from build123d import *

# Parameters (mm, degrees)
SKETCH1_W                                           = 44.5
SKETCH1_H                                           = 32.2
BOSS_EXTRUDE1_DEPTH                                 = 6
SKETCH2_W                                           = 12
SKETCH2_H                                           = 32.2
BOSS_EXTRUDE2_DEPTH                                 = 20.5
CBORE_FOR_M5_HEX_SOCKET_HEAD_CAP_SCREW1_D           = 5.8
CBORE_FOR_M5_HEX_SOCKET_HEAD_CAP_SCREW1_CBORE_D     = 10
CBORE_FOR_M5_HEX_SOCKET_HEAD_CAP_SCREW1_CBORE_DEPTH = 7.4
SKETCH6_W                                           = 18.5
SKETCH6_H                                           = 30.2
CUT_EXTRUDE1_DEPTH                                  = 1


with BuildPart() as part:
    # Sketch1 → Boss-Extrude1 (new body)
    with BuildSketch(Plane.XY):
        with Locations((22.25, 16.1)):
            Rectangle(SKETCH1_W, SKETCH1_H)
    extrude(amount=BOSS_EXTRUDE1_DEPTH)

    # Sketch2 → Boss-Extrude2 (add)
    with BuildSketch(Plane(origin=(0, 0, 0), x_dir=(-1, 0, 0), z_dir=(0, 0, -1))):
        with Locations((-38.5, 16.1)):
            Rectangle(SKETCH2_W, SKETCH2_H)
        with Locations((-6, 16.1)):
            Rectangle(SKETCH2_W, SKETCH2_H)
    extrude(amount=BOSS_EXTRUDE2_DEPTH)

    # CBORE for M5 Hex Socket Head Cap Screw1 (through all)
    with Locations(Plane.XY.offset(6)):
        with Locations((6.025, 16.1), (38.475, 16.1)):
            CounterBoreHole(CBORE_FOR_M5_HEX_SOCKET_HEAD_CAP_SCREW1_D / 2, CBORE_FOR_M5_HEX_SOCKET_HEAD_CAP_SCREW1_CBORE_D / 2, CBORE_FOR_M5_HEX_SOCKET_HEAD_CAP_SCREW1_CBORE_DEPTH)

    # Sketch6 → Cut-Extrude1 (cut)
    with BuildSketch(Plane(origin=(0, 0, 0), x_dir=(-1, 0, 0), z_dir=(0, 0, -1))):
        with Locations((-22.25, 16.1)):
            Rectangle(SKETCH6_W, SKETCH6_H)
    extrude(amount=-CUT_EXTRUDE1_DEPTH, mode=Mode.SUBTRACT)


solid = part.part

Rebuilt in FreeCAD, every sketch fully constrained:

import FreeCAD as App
import Part
import Sketcher

doc = App.newDocument("Part")
params = doc.addObject("Spreadsheet::Sheet", "Params")
for row, (alias, value) in enumerate([
    ("sketch1_width", "44.5 mm"),
    ("sketch1_height", "32.2 mm"),
    ("pad1_length", "6 mm"),
    ("sketch2_width", "12 mm"),
    ("sketch2_height", "32.2 mm"),
    ("pad2_length", "20.5 mm"),
    ("sketch3_diameter", "5.8 mm"),
    ("hole_diameter", "5.8 mm"),
    ("hole_cbore_diameter", "10 mm"),
    ("hole_cbore_depth", "7.4 mm"),
    ("sketch4_width", "18.5 mm"),
    ("sketch4_height", "30.2 mm"),
    ("pocket1_length", "1 mm"),
], start=1):
    params.set(f"A{row}", alias)
    params.set(f"B{row}", "=" + value)
    params.setAlias(f"B{row}", alias)

body = doc.addObject("PartDesign::Body", "Body")

# Sketch on XY plane
sketch1 = doc.addObject("Sketcher::SketchObject", "Sketch")
body.addObject(sketch1)
sketch1.AttachmentSupport = (doc.XY_Plane, [""])
sketch1.MapMode = "FlatFace"
sketch1.addGeometry(Part.LineSegment(App.Vector(0, 32, 0), App.Vector(0, 0, 0)), False)
sketch1.addGeometry(Part.LineSegment(App.Vector(0, 0, 0), App.Vector(44, 0, 0)), False)
sketch1.addGeometry(Part.LineSegment(App.Vector(44, 0, 0), App.Vector(44, 32, 0)), False)
sketch1.addGeometry(Part.LineSegment(App.Vector(44, 32, 0), App.Vector(0, 32, 0)), False)
sketch1.addConstraint(Sketcher.Constraint("Coincident", 0, 2, 1, 1))
sketch1.addConstraint(Sketcher.Constraint("Coincident", 1, 2, 2, 1))
sketch1.addConstraint(Sketcher.Constraint("Coincident", 2, 2, 3, 1))
sketch1.addConstraint(Sketcher.Constraint("Coincident", 3, 2, 0, 1))
sketch1.addConstraint(Sketcher.Constraint("Vertical", 0))
sketch1.addConstraint(Sketcher.Constraint("Horizontal", 1))
sketch1.addConstraint(Sketcher.Constraint("Vertical", 2))
sketch1.addConstraint(Sketcher.Constraint("Horizontal", 3))
sketch1.addConstraint(Sketcher.Constraint("Coincident", 0, 2, -1, 1))
sketch1.addConstraint(Sketcher.Constraint("DistanceX", 1, 1, 1, 2, 44.5))
sketch1.addConstraint(Sketcher.Constraint("DistanceY", 0, 2, 0, 1, 32.2))
sketch1.setExpression("Constraints[9]", "Params.sketch1_width")
sketch1.setExpression("Constraints[10]", "Params.sketch1_height")
pad1 = doc.addObject("PartDesign::Pad", "Pad")
body.addObject(pad1)
pad1.Profile = sketch1
pad1.setExpression("Length", "Params.pad1_length")

# Sketch on XY plane
sketch2 = doc.addObject("Sketcher::SketchObject", "Sketch001")
body.addObject(sketch2)
sketch2.AttachmentSupport = (doc.XY_Plane, [""])
sketch2.MapMode = "FlatFace"
sketch2.addGeometry(Part.LineSegment(App.Vector(44, 32, 0), App.Vector(44, 0, 0)), False)
sketch2.addGeometry(Part.LineSegment(App.Vector(44, 0, 0), App.Vector(32, 0, 0)), False)
sketch2.addGeometry(Part.LineSegment(App.Vector(32, 0, 0), App.Vector(32, 32, 0)), False)
sketch2.addGeometry(Part.LineSegment(App.Vector(32, 32, 0), App.Vector(44, 32, 0)), False)
sketch2.addGeometry(Part.LineSegment(App.Vector(12, 32, 0), App.Vector(12, 0, 0)), False)
sketch2.addGeometry(Part.LineSegment(App.Vector(12, 0, 0), App.Vector(0, 0, 0)), False)
sketch2.addGeometry(Part.LineSegment(App.Vector(0, 0, 0), App.Vector(0, 32, 0)), False)
sketch2.addGeometry(Part.LineSegment(App.Vector(0, 32, 0), App.Vector(12, 32, 0)), False)
sketch2.addConstraint(Sketcher.Constraint("Coincident", 0, 2, 1, 1))
sketch2.addConstraint(Sketcher.Constraint("Coincident", 1, 2, 2, 1))
sketch2.addConstraint(Sketcher.Constraint("Coincident", 2, 2, 3, 1))
sketch2.addConstraint(Sketcher.Constraint("Coincident", 3, 2, 0, 1))
sketch2.addConstraint(Sketcher.Constraint("Coincident", 4, 2, 5, 1))
sketch2.addConstraint(Sketcher.Constraint("Coincident", 5, 2, 6, 1))
sketch2.addConstraint(Sketcher.Constraint("Coincident", 6, 2, 7, 1))
sketch2.addConstraint(Sketcher.Constraint("Coincident", 7, 2, 4, 1))
sketch2.addConstraint(Sketcher.Constraint("Vertical", 0))
sketch2.addConstraint(Sketcher.Constraint("Horizontal", 1))
sketch2.addConstraint(Sketcher.Constraint("Vertical", 2))
sketch2.addConstraint(Sketcher.Constraint("Horizontal", 3))
sketch2.addConstraint(Sketcher.Constraint("Vertical", 4))
sketch2.addConstraint(Sketcher.Constraint("Horizontal", 5))
sketch2.addConstraint(Sketcher.Constraint("Vertical", 6))
sketch2.addConstraint(Sketcher.Constraint("Horizontal", 7))
sketch2.addConstraint(Sketcher.Constraint("Coincident", 5, 2, -1, 1))
sketch2.addConstraint(Sketcher.Constraint("PointOnObject", 0, 2, -1))
sketch2.addConstraint(Sketcher.Constraint("Horizontal", 3, 2, 6, 2))
sketch2.addConstraint(Sketcher.Constraint("Equal", 3, 5))
sketch2.addConstraint(Sketcher.Constraint("DistanceX", 1, 2, 1, 1, 12.0))
sketch2.addConstraint(Sketcher.Constraint("DistanceY", 0, 2, 0, 1, 32.2))
sketch2.addConstraint(Sketcher.Constraint("DistanceX", -1, 1, 0, 2, 44.5))
sketch2.setExpression("Constraints[20]", "Params.sketch2_width")
sketch2.setExpression("Constraints[21]", "Params.sketch2_height")
pad2 = doc.addObject("PartDesign::Pad", "Pad001")
body.addObject(pad2)
pad2.Profile = sketch2
pad2.setExpression("Length", "Params.pad2_length")
pad2.Reversed = True

# Sketch on XY plane
sketch3 = doc.addObject("Sketcher::SketchObject", "Sketch002")
body.addObject(sketch3)
sketch3.AttachmentSupport = (doc.XY_Plane, [""])
sketch3.MapMode = "FlatFace"
sketch3.AttachmentOffset = App.Placement(App.Vector(0, 0, 6), App.Rotation())
sketch3.addGeometry(Part.Circle(App.Vector(6, 16.1, 0), App.Vector(0, 0, 1), 2.9), False)
sketch3.addGeometry(Part.Circle(App.Vector(38.5, 16.1, 0), App.Vector(0, 0, 1), 2.9), False)
sketch3.addConstraint(Sketcher.Constraint("Equal", 0, 1))
sketch3.addConstraint(Sketcher.Constraint("Horizontal", 0, 3, 1, 3))
sketch3.addConstraint(Sketcher.Constraint("Diameter", 0, 5.8))
sketch3.addConstraint(Sketcher.Constraint("DistanceY", -1, 1, 0, 3, 16.1))
sketch3.addConstraint(Sketcher.Constraint("DistanceX", 0, 3, 1, 3, 32.45))
sketch3.addConstraint(Sketcher.Constraint("DistanceX", -1, 1, 0, 3, 6.025))
sketch3.setExpression("Constraints[2]", "Params.sketch3_diameter")
doc.recompute()
hole = doc.addObject("PartDesign::Hole", "Hole")
body.addObject(hole)
hole.Profile = sketch3
hole.ThreadType = "None"
hole.setExpression("Diameter", "Params.hole_diameter")
hole.DepthType = "ThroughAll"
hole.HoleCutType = "Counterbore"
hole.setExpression("HoleCutDiameter", "Params.hole_cbore_diameter")
hole.setExpression("HoleCutDepth", "Params.hole_cbore_depth")

# Sketch on XY plane
sketch4 = doc.addObject("Sketcher::SketchObject", "Sketch003")
body.addObject(sketch4)
sketch4.AttachmentSupport = (doc.XY_Plane, [""])
sketch4.MapMode = "FlatFace"
sketch4.addGeometry(Part.LineSegment(App.Vector(32, 31, 0), App.Vector(32, 1, 0)), False)
sketch4.addGeometry(Part.LineSegment(App.Vector(32, 1, 0), App.Vector(13, 1, 0)), False)
sketch4.addGeometry(Part.LineSegment(App.Vector(13, 1, 0), App.Vector(13, 31, 0)), False)
sketch4.addGeometry(Part.LineSegment(App.Vector(13, 31, 0), App.Vector(32, 31, 0)), False)
sketch4.addConstraint(Sketcher.Constraint("Coincident", 0, 2, 1, 1))
sketch4.addConstraint(Sketcher.Constraint("Coincident", 1, 2, 2, 1))
sketch4.addConstraint(Sketcher.Constraint("Coincident", 2, 2, 3, 1))
sketch4.addConstraint(Sketcher.Constraint("Coincident", 3, 2, 0, 1))
sketch4.addConstraint(Sketcher.Constraint("Vertical", 0))
sketch4.addConstraint(Sketcher.Constraint("Horizontal", 1))
sketch4.addConstraint(Sketcher.Constraint("Vertical", 2))
sketch4.addConstraint(Sketcher.Constraint("Horizontal", 3))
sketch4.addConstraint(Sketcher.Constraint("DistanceX", 1, 2, 1, 1, 18.5))
sketch4.addConstraint(Sketcher.Constraint("DistanceY", 0, 2, 0, 1, 30.2))
sketch4.addConstraint(Sketcher.Constraint("DistanceY", -1, 1, 0, 2, 1.0))
sketch4.addConstraint(Sketcher.Constraint("DistanceX", -1, 1, 1, 2, 13.0))
sketch4.setExpression("Constraints[8]", "Params.sketch4_width")
sketch4.setExpression("Constraints[9]", "Params.sketch4_height")
pocket1 = doc.addObject("PartDesign::Pocket", "Pocket")
body.addObject(pocket1)
pocket1.Profile = sketch4
pocket1.setExpression("Length", "Params.pocket1_length")
pocket1.Reversed = True

doc.recompute()
